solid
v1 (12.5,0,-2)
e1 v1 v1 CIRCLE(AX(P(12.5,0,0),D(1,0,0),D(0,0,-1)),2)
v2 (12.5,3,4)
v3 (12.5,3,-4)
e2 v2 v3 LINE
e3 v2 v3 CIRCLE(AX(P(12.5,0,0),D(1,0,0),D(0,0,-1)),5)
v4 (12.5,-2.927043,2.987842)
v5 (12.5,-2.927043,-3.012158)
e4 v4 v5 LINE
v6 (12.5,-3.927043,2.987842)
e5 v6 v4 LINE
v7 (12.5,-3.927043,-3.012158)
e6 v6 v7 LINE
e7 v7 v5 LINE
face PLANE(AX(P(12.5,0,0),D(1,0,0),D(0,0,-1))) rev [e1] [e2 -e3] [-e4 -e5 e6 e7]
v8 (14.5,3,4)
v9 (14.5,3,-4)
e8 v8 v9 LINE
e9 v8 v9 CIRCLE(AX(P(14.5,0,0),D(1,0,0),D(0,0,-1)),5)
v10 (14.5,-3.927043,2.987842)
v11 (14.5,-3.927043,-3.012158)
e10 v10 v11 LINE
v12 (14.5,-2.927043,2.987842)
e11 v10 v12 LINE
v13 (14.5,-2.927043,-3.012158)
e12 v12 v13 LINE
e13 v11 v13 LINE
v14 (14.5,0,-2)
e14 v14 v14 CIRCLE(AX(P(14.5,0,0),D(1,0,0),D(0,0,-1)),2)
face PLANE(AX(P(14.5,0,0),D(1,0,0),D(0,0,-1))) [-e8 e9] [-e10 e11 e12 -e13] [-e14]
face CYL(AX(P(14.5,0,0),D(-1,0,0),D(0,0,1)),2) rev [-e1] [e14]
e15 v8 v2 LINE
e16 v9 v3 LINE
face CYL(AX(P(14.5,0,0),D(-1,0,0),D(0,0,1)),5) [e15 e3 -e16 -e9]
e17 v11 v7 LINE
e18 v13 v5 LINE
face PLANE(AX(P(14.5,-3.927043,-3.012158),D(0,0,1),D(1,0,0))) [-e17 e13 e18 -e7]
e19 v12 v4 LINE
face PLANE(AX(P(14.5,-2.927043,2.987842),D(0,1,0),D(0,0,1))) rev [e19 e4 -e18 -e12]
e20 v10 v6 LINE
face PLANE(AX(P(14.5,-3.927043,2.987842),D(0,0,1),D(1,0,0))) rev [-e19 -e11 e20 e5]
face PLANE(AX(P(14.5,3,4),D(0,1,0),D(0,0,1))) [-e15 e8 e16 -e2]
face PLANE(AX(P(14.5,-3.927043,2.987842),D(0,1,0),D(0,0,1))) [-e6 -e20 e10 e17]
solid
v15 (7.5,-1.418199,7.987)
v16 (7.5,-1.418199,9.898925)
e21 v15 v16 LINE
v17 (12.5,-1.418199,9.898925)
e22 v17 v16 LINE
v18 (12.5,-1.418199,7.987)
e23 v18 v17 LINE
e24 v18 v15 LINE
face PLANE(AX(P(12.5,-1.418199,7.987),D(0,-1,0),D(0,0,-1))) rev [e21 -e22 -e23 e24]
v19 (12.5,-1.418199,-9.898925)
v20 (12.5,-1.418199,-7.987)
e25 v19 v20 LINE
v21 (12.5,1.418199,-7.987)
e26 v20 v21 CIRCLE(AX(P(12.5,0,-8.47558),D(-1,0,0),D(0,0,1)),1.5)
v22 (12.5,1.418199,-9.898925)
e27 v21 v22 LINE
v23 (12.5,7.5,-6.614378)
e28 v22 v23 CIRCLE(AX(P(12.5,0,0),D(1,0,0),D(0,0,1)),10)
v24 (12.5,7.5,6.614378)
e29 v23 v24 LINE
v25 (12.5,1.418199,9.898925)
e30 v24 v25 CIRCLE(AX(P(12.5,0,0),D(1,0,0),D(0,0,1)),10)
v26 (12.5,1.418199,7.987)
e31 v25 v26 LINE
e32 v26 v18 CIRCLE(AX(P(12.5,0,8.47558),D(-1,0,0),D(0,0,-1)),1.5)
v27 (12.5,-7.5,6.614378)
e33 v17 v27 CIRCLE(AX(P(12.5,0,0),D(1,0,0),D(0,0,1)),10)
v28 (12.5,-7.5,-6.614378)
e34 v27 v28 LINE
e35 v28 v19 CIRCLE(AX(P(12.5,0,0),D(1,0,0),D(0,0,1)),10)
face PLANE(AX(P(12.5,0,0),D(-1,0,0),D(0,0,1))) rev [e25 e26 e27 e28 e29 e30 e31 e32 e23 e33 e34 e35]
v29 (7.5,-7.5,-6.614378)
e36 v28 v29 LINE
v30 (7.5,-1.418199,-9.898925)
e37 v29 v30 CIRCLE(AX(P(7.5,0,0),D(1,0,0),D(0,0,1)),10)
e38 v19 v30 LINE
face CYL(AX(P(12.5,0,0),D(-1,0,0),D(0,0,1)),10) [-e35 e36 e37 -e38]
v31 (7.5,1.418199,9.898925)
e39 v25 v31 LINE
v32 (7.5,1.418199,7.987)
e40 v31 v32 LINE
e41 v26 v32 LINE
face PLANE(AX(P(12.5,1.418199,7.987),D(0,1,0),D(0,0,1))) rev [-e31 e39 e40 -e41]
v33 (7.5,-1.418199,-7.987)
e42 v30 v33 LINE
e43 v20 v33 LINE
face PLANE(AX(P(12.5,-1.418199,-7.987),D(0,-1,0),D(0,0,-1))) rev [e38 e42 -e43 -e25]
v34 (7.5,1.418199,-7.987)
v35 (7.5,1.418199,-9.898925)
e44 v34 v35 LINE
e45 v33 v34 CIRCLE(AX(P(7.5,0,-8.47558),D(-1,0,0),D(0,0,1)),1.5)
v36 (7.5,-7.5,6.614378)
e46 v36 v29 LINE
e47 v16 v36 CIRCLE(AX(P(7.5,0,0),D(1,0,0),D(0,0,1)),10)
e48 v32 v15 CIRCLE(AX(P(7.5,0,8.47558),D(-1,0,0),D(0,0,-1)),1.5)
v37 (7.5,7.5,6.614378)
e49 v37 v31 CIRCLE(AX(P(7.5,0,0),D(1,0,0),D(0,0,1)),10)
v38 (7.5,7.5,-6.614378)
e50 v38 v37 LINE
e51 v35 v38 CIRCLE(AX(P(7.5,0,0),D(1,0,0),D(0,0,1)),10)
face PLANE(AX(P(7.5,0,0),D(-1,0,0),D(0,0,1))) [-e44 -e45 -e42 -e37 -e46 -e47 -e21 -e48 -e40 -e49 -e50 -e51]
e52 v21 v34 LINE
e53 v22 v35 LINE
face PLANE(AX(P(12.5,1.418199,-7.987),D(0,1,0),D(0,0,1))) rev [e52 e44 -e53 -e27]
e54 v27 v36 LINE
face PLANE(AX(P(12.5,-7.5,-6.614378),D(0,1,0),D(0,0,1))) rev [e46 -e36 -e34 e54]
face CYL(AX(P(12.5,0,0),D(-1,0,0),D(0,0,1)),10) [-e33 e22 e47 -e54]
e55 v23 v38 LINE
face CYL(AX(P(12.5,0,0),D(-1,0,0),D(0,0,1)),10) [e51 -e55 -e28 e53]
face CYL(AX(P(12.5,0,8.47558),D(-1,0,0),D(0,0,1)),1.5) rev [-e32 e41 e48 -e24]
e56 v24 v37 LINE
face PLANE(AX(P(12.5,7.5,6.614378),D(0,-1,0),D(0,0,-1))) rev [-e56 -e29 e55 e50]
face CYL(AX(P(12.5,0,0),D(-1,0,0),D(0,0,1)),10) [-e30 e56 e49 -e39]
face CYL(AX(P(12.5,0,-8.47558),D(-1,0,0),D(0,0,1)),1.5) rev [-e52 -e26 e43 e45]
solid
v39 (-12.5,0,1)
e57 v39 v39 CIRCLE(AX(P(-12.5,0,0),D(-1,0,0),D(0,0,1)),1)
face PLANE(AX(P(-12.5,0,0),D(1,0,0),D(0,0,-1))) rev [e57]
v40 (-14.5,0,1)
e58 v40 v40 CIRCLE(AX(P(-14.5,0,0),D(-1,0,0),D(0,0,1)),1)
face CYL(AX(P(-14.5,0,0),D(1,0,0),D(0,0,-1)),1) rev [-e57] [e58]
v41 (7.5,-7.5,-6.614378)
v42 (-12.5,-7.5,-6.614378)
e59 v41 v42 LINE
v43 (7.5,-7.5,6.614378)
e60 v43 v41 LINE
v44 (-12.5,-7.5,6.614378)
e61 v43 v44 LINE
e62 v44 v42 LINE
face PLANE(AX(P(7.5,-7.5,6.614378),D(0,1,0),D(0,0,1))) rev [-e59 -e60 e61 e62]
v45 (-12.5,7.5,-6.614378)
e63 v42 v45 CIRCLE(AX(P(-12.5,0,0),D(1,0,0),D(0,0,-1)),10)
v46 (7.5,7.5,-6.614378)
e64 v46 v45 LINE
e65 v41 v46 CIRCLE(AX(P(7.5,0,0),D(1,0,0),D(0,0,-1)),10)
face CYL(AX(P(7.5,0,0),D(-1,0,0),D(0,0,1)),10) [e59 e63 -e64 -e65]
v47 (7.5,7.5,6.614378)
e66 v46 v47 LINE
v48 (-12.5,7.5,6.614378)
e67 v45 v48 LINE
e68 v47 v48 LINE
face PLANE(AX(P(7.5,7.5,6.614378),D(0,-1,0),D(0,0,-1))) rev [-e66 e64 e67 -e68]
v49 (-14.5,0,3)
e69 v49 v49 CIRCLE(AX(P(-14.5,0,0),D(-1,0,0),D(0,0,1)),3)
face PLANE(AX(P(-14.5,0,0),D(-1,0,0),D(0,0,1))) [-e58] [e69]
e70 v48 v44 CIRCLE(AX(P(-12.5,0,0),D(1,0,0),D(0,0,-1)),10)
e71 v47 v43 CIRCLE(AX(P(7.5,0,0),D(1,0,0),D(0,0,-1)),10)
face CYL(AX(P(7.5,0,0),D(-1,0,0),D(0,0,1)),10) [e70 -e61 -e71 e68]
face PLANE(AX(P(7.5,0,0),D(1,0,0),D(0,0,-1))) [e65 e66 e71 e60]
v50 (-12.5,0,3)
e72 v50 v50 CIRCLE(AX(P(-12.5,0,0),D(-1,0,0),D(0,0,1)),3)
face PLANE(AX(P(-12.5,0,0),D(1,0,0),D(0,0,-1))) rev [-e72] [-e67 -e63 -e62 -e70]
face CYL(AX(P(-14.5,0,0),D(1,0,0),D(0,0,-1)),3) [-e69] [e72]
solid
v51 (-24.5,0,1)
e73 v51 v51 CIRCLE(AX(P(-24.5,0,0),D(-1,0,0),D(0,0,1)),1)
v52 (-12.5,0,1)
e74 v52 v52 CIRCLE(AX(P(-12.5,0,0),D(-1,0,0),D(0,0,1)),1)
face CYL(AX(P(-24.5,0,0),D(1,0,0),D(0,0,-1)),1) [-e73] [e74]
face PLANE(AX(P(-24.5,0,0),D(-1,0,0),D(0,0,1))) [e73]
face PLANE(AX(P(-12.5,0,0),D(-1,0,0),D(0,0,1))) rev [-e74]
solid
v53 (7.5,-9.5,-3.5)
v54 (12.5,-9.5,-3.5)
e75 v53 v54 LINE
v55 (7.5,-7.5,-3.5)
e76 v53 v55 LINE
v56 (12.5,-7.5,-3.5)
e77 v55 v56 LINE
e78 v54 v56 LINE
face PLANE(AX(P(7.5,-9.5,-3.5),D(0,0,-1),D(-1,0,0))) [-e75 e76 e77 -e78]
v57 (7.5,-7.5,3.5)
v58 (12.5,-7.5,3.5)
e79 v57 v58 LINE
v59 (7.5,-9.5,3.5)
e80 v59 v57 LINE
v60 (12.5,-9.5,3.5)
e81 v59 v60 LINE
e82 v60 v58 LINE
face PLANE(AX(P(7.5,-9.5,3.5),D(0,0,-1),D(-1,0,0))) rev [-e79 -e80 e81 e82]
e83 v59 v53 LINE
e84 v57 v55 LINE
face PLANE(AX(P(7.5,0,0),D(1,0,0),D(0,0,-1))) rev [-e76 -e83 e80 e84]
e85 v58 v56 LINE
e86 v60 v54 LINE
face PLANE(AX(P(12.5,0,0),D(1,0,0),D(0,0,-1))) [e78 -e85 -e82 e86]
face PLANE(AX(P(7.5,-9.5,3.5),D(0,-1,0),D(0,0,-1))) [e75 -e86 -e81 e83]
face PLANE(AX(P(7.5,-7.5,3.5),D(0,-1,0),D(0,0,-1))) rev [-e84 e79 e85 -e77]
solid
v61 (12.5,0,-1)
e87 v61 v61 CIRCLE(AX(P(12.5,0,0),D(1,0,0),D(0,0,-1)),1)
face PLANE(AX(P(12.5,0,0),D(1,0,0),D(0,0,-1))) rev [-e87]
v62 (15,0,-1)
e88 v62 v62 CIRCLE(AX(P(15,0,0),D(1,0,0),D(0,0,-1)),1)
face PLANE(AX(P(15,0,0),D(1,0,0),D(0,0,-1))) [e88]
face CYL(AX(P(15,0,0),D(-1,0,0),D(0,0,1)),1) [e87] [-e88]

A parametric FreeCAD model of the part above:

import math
import FreeCAD as App
import Part
import Sketcher

V = App.Vector


def add_polygon(sketch, points):
    """Adds a closed chain of lines whose ends are joined by coincident constraints."""
    first, n = sketch.GeometryCount, len(points)
    for a, b in zip(points, points[1:] + points[:1]):
        sketch.addGeometry(Part.LineSegment(App.Vector(*a, 0), App.Vector(*b, 0)), False)
    for i in range(n):
        sketch.addConstraint(Sketcher.Constraint("Coincident", first + i, 2, first + (i + 1) % n, 1))

doc = App.newDocument("Part")
body = doc.addObject("PartDesign::Body", "Body")

# Sketch on YZ plane
sketch1 = doc.addObject("Sketcher::SketchObject", "Sketch")
body.addObject(sketch1)
sketch1.AttachmentSupport = (doc.YZ_Plane, [""])
sketch1.MapMode = "FlatFace"
sketch1.addGeometry([
    Part.LineSegment(V(-7.5, 6.614378, 0), V(-7.5, -6.614378, 0)),
    Part.ArcOfCircle(Part.Circle(V(0, 0, 0), V(0, 0, 1), 10), math.radians(-138.590378), math.radians(-41.409622)),
    Part.LineSegment(V(7.5, -6.614378, 0), V(7.5, 6.614378, 0)),
    Part.ArcOfCircle(Part.Circle(V(0, 0, 0), V(0, 0, 1), 10), math.radians(41.409622), math.radians(138.590378)),
], False)
sketch1.addConstraint([
    Sketcher.Constraint("Coincident", 0, 2, 1, 1),
    Sketcher.Constraint("Coincident", 1, 2, 2, 1),
    Sketcher.Constraint("Coincident", 2, 2, 3, 1),
    Sketcher.Constraint("Coincident", 3, 2, 0, 1),
    Sketcher.Constraint("Vertical", 0),
    Sketcher.Constraint("Vertical", 2),
    Sketcher.Constraint("Coincident", 1, 3, -1, 1),
    Sketcher.Constraint("Coincident", 3, 3, -1, 1),
    Sketcher.Constraint("Equal", 1, 3),
    Sketcher.Constraint("Horizontal", 0, 2, 1, 2),
    Sketcher.Constraint("Radius", 1, 10.0),
    Sketcher.Constraint("DistanceX", 0, 2, 1, 2, 15.0),
])
pad1 = doc.addObject("PartDesign::Pad", "Pad")
body.addObject(pad1)
pad1.Profile = sketch1
pad1.Type = "TwoLengths"
pad1.Length = 7.5
pad1.Length2 = 12.5

# Sketch on YZ plane
sketch2 = doc.addObject("Sketcher::SketchObject", "Sketch001")
body.addObject(sketch2)
sketch2.AttachmentSupport = (doc.YZ_Plane, [""])
sketch2.MapMode = "FlatFace"
sketch2.AttachmentOffset = App.Placement(V(0, 0, -12.5), App.Rotation())
sketch2.addGeometry([
    Part.Circle(V(0, 0, 0), V(0, 0, 1), 3),
    Part.Circle(V(0, 0, 0), V(0, 0, 1), 1),
], False)
sketch2.addConstraint([
    Sketcher.Constraint("Coincident", 0, 3, -1, 1),
    Sketcher.Constraint("Coincident", 1, 3, -1, 1),
    Sketcher.Constraint("Diameter", 0, 6.0),
    Sketcher.Constraint("Diameter", 1, 2.0),
])
pad2 = doc.addObject("PartDesign::Pad", "Pad001")
body.addObject(pad2)
pad2.Profile = sketch2
pad2.Length = 2
pad2.Reversed = True
body2 = doc.addObject("PartDesign::Body", "Body001")

# Sketch on YZ plane
sketch3 = doc.addObject("Sketcher::SketchObject", "Sketch002")
body2.addObject(sketch3)
sketch3.AttachmentSupport = (doc.getObject("YZ_Plane001"), [""])
sketch3.MapMode = "FlatFace"
sketch3.AttachmentOffset = App.Placement(V(0, 0, 7.5), App.Rotation())
sketch3.addGeometry([
    Part.LineSegment(V(7.5, -6.614378, 0), V(7.5, 6.614378, 0)),  # 0
    Part.ArcOfCircle(Part.Circle(V(0, 0, 0), V(0, 0, 1), 10), math.radians(41.409622), math.radians(81.846828)),  # 1
    Part.LineSegment(V(1.418199, 9.898925, 0), V(1.418199, 7.987, 0)),  # 2
    Part.ArcOfCircle(Part.Circle(V(0, 8.47558, 0), V(0, 0, 1), 1.5), math.radians(-160.990793), math.radians(-19.009207)),  # 3
    Part.LineSegment(V(-1.418199, 7.987, 0), V(-1.418199, 9.898925, 0)),  # 4
    Part.ArcOfCircle(Part.Circle(V(0, 0, 0), V(0, 0, 1), 10), math.radians(98.153172), math.radians(138.590378)),  # 5
    Part.LineSegment(V(-7.5, 6.614378, 0), V(-7.5, -6.614378, 0)),  # 6
    Part.ArcOfCircle(Part.Circle(V(0, 0, 0), V(0, 0, 1), 10), math.radians(-138.590378), math.radians(-98.153172)),  # 7
    Part.LineSegment(V(-1.418199, -9.898925, 0), V(-1.418199, -7.987, 0)),  # 8
    Part.ArcOfCircle(Part.Circle(V(0, -8.47558, 0), V(0, 0, 1), 1.5), math.radians(19.009207), math.radians(160.990793)),  # 9
    Part.LineSegment(V(1.418199, -7.987, 0), V(1.418199, -9.898925, 0)),  # 10
    Part.ArcOfCircle(Part.Circle(V(0, 0, 0), V(0, 0, 1), 10), math.radians(-81.846828), math.radians(-41.409622)),  # 11
], False)
sketch3.addConstraint([
    Sketcher.Constraint("Coincident", 0, 2, 1, 1),
    Sketcher.Constraint("Coincident", 1, 2, 2, 1),
    Sketcher.Constraint("Coincident", 2, 2, 3, 2),
    Sketcher.Constraint("Coincident", 3, 1, 4, 1),
    Sketcher.Constraint("Coincident", 4, 2, 5, 1),
    Sketcher.Constraint("Coincident", 5, 2, 6, 1),
    Sketcher.Constraint("Coincident", 6, 2, 7, 1),
    Sketcher.Constraint("Coincident", 7, 2, 8, 1),
    Sketcher.Constraint("Coincident", 8, 2, 9, 2),
    Sketcher.Constraint("Coincident", 9, 1, 10, 1),
    Sketcher.Constraint("Coincident", 10, 2, 11, 1),
    Sketcher.Constraint("Coincident", 11, 2, 0, 1),
    Sketcher.Constraint("Vertical", 0),
    Sketcher.Constraint("Vertical", 2),
    Sketcher.Constraint("Vertical", 4),
    Sketcher.Constraint("Vertical", 6),
    Sketcher.Constraint("Vertical", 8),
    Sketcher.Constraint("Vertical", 10),
    Sketcher.Constraint("Coincident", 1, 3, -1, 1),
    Sketcher.Constraint("Coincident", 5, 3, -1, 1),
    Sketcher.Constraint("Coincident", 7, 3, -1, 1),
    Sketcher.Constraint("Coincident", 11, 3, -1, 1),
    Sketcher.Constraint("Equal", 1, 5),
    Sketcher.Constraint("Equal", 5, 7),
    Sketcher.Constraint("Equal", 3, 9),
    Sketcher.Constraint("Equal", 7, 11),
    Sketcher.Constraint("Symmetric", 3, 3, 9, 3, -1, 1),
    Sketcher.Constraint("Symmetric", 2, 2, 3, 1, -2),
    Sketcher.Constraint("Horizontal", 0, 2, 5, 2),
    Sketcher.Constraint("Horizontal", 8, 2, 9, 1),
    Sketcher.Constraint("Vertical", 4, 2, 7, 2),
    Sketcher.Constraint("Radius", 1, 10.0),
    Sketcher.Constraint("Radius", 3, 1.5),
    Sketcher.Constraint("DistanceX", -1, 1, 0, 2, 7.5),
    Sketcher.Constraint("DistanceY", -1, 1, 2, 2, 7.987),
    Sketcher.Constraint("DistanceX", -1, 1, 1, 2, 1.418199),
])
pad3 = doc.addObject("PartDesign::Pad", "Pad002")
body2.addObject(pad3)
pad3.Profile = sketch3
pad3.Length = 5
body3 = doc.addObject("PartDesign::Body", "Body002")

# Sketch on YZ plane
sketch4 = doc.addObject("Sketcher::SketchObject", "Sketch003")
body3.addObject(sketch4)
sketch4.AttachmentSupport = (doc.getObject("YZ_Plane002"), [""])
sketch4.MapMode = "FlatFace"
sketch4.AttachmentOffset = App.Placement(V(0, 0, 12.5), App.Rotation())
sketch4.addGeometry(Part.Circle(V(0, 0, 0), V(0, 0, 1), 1), False)
sketch4.addConstraint([
    Sketcher.Constraint("Coincident", 0, 3, -1, 1),
    Sketcher.Constraint("Diameter", 0, 2.0),
])
pad4 = doc.addObject("PartDesign::Pad", "Pad003")
body3.addObject(pad4)
pad4.Profile = sketch4
pad4.Length = 2.5
body4 = doc.addObject("PartDesign::Body", "Body003")

# Sketch on YZ plane
sketch5 = doc.addObject("Sketcher::SketchObject", "Sketch004")
body4.addObject(sketch5)
sketch5.AttachmentSupport = (doc.getObject("YZ_Plane003"), [""])
sketch5.MapMode = "FlatFace"
sketch5.AttachmentOffset = App.Placement(V(0, 0, 12.5), App.Rotation())
sketch5.addGeometry(Part.LineSegment(V(3, -4, 0), V(3, 4, 0)), False)  # 0
sketch5.addGeometry(Part.ArcOfCircle(Part.Circle(V(0, 0, 0), V(0, 0, 1), 5), math.radians(53.130102), math.radians(306.869898)), False)  # 1
add_polygon(sketch5, [(-3.927043, -3.012158), (-3.927043, 2.987842), (-2.927043, 2.987842), (-2.927043, -3.012158)])  # lines 2-5
sketch5.addGeometry(Part.Circle(V(0, 0, 0), V(0, 0, 1), 2), False)  # 6
sketch5.addConstraint([
    Sketcher.Constraint("Coincident", 0, 1, 1, 2),
    Sketcher.Constraint("Coincident", 1, 1, 0, 2),
    Sketcher.Constraint("Vertical", 0),
    Sketcher.Constraint("Vertical", 2),
    Sketcher.Constraint("Horizontal", 3),
    Sketcher.Constraint("Vertical", 4),
    Sketcher.Constraint("Horizontal", 5),
    Sketcher.Constraint("Coincident", 1, 3, -1, 1),
    Sketcher.Constraint("Coincident", 6, 3, -1, 1),
    Sketcher.Constraint("Diameter", 6, 4.0),
    Sketcher.Constraint("Radius", 1, 5.0),
    Sketcher.Constraint("DistanceX", 3, 1, 3, 2, 1.0),
    Sketcher.Constraint("DistanceY", 0, 1, 0, 2, 8.0),
    Sketcher.Constraint("DistanceY", 2, 1, 2, 2, 6.0),
    Sketcher.Constraint("DistanceX", 2, 2, -1, 1, 3.927043),
    Sketcher.Constraint("DistanceY", -1, 1, 2, 2, 2.987842),
])
pad5 = doc.addObject("PartDesign::Pad", "Pad004")
body4.addObject(pad5)
pad5.Profile = sketch5
pad5.Length = 2
body5 = doc.addObject("PartDesign::Body", "Body004")

# Sketch on YZ plane
sketch6 = doc.addObject("Sketcher::SketchObject", "Sketch005")
body5.addObject(sketch6)
sketch6.AttachmentSupport = (doc.getObject("YZ_Plane004"), [""])
sketch6.MapMode = "FlatFace"
sketch6.AttachmentOffset = App.Placement(V(0, 0, 12.5), App.Rotation())
add_polygon(sketch6, [(-7.5, 3.5), (-9.5, 3.5), (-9.5, -3.5), (-7.5, -3.5)])  # lines 0-3
sketch6.addConstraint([
    Sketcher.Constraint("Horizontal", 0),
    Sketcher.Constraint("Vertical", 1),
    Sketcher.Constraint("Horizontal", 2),
    Sketcher.Constraint("Vertical", 3),
    Sketcher.Constraint("DistanceX", 0, 2, 0, 1, 2.0),
    Sketcher.Constraint("DistanceY", 1, 2, 1, 1, 7.0),
    Sketcher.Constraint("DistanceX", 0, 2, -1, 1, 9.5),
    Sketcher.Constraint("DistanceY", -1, 1, 0, 2, 3.5),
])
pad6 = doc.addObject("PartDesign::Pad", "Pad005")
body5.addObject(pad6)
pad6.Profile = sketch6
pad6.Length = 5
pad6.Reversed = True
body6 = doc.addObject("PartDesign::Body", "Body005")

# Sketch on YZ plane
sketch7 = doc.addObject("Sketcher::SketchObject", "Sketch006")
body6.addObject(sketch7)
sketch7.AttachmentSupport = (doc.getObject("YZ_Plane005"), [""])
sketch7.MapMode = "FlatFace"
sketch7.AttachmentOffset = App.Placement(V(0, 0, -12.5), App.Rotation())
sketch7.addGeometry(Part.Circle(V(0, 0, 0), V(0, 0, 1), 1), False)
sketch7.addConstraint([
    Sketcher.Constraint("Coincident", 0, 3, -1, 1),
    Sketcher.Constraint("Diameter", 0, 2.0),
])
pad7 = doc.addObject("PartDesign::Pad", "Pad006")
body6.addObject(pad7)
pad7.Profile = sketch7
pad7.Length = 12
pad7.Reversed = True

doc.recompute()
